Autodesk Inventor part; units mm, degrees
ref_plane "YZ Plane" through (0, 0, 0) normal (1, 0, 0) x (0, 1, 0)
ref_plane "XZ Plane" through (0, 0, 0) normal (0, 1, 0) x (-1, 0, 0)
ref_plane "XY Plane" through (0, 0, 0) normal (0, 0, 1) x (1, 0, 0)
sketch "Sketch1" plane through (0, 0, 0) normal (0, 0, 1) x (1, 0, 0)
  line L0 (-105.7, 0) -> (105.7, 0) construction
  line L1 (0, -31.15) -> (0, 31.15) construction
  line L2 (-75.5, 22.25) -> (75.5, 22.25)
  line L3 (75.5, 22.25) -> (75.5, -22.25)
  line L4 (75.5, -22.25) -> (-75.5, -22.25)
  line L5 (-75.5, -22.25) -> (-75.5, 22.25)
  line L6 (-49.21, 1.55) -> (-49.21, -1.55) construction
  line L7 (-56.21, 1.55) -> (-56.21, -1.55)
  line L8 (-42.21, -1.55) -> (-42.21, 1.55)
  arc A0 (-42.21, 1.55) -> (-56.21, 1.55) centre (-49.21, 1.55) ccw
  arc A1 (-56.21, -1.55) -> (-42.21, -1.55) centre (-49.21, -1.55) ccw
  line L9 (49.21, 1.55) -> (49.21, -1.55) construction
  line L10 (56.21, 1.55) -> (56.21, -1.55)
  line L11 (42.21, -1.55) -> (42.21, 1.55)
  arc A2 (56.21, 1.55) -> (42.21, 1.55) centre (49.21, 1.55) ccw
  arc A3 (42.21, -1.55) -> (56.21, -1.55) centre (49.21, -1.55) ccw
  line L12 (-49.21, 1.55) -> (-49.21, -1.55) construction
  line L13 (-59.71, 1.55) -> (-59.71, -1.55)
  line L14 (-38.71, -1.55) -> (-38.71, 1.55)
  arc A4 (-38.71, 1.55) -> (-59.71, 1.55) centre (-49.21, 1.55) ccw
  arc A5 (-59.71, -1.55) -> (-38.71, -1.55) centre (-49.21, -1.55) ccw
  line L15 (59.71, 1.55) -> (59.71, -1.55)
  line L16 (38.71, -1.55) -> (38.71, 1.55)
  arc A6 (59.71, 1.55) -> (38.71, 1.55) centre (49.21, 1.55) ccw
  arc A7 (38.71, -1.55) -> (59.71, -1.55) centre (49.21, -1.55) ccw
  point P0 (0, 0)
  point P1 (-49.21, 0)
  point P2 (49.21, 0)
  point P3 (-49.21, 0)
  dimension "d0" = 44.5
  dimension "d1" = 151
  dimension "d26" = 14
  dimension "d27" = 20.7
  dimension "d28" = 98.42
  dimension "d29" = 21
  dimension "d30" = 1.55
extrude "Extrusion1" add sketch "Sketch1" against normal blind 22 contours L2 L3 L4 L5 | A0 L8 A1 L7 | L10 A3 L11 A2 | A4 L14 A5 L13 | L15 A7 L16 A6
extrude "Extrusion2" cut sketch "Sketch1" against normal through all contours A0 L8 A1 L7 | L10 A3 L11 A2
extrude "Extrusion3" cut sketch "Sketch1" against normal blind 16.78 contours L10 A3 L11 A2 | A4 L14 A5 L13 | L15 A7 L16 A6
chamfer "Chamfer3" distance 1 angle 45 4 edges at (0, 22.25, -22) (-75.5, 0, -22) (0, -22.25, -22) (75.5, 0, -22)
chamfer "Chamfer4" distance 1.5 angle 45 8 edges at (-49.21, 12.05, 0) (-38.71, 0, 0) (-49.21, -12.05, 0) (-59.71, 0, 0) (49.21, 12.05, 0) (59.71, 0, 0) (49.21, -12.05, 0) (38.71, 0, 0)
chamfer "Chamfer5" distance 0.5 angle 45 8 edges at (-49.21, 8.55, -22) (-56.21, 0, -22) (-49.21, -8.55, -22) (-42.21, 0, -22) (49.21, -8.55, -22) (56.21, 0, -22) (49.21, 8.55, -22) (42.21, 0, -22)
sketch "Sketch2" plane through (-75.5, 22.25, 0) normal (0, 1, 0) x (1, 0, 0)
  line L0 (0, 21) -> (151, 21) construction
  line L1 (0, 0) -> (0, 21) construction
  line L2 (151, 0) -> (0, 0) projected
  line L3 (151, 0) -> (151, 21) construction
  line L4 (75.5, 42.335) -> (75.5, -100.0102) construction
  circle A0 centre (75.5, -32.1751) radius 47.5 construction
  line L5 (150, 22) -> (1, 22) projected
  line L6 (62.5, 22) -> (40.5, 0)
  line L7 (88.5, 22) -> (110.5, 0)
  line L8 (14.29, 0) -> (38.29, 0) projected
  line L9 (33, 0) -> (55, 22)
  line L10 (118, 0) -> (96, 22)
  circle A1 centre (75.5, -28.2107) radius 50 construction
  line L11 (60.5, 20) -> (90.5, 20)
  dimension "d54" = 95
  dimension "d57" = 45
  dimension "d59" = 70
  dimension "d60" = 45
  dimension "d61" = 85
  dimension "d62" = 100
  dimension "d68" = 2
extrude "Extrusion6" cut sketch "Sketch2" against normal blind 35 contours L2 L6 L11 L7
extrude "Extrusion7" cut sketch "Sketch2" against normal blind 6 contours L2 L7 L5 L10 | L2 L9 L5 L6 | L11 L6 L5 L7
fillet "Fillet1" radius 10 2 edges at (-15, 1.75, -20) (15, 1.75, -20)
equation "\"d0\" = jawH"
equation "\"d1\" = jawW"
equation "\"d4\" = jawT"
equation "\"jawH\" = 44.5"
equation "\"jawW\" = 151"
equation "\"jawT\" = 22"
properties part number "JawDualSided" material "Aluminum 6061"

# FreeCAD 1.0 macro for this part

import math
import FreeCAD as App
import Part
import Sketcher


def edges_at(feature, points):
    """Names of the edges that pass closest to the given points."""
    edges = feature.Shape.Edges
    near = lambda p: min(range(len(edges)), key=lambda i: edges[i].distToShape(Part.Vertex(*p))[0])
    return sorted({f"Edge{near(p) + 1}" for p in points})

doc = App.newDocument("Part")
body = doc.addObject("PartDesign::Body", "Body")

# Sketch on XY plane
sketch1 = body.newObject("Sketcher::SketchObject", "Sketch")
sketch1.AttachmentSupport = (doc.getObject("XY_Plane"), [""])
sketch1.MapMode = "FlatFace"
sketch1.addGeometry([
    Part.LineSegment(App.Vector(76, 22, 0), App.Vector(-76, 22, 0)),
    Part.LineSegment(App.Vector(-76, 22, 0), App.Vector(-76, -22, 0)),
    Part.LineSegment(App.Vector(-76, -22, 0), App.Vector(76, -22, 0)),
    Part.LineSegment(App.Vector(76, -22, 0), App.Vector(76, 22, 0)),
], False)
sketch1.addConstraint([
    Sketcher.Constraint("Coincident", 0, 2, 1, 1),
    Sketcher.Constraint("Coincident", 1, 2, 2, 1),
    Sketcher.Constraint("Coincident", 2, 2, 3, 1),
    Sketcher.Constraint("Coincident", 3, 2, 0, 1),
    Sketcher.Constraint("Horizontal", 0),
    Sketcher.Constraint("Vertical", 1),
    Sketcher.Constraint("Horizontal", 2),
    Sketcher.Constraint("Vertical", 3),
    Sketcher.Constraint("Symmetric", 0, 2, 2, 2, -1, 1),
    Sketcher.Constraint("DistanceX", 0, 2, 0, 1, 151.0),
    Sketcher.Constraint("DistanceY", 1, 2, 1, 1, 44.5),
])
pad1 = body.newObject("PartDesign::Pad", "Pad")
pad1.Profile = sketch1
pad1.Length = 22
pad1.Reversed = True

# Sketch on XY plane
sketch2 = body.newObject("Sketcher::SketchObject", "Sketch001")
sketch2.AttachmentSupport = (doc.getObject("XY_Plane"), [""])
sketch2.MapMode = "FlatFace"
sketch2.addGeometry([
    Part.ArcOfCircle(Part.Circle(App.Vector(-49.2, 1.6, 0), App.Vector(0, 0, 1), 7), math.radians(0), math.radians(180)),  # 0
    Part.LineSegment(App.Vector(-56.2, 1.6, 0), App.Vector(-56.2, -1.6, 0)),  # 1
    Part.ArcOfCircle(Part.Circle(App.Vector(-49.2, -1.6, 0), App.Vector(0, 0, 1), 7), math.radians(180), math.radians(360)),  # 2
    Part.LineSegment(App.Vector(-42.2, -1.6, 0), App.Vector(-42.2, 1.6, 0)),  # 3
    Part.LineSegment(App.Vector(56.2, -1.6, 0), App.Vector(56.2, 1.6, 0)),  # 4
    Part.ArcOfCircle(Part.Circle(App.Vector(49.2, 1.6, 0), App.Vector(0, 0, 1), 7), math.radians(0), math.radians(180)),  # 5
    Part.LineSegment(App.Vector(42.2, 1.6, 0), App.Vector(42.2, -1.6, 0)),  # 6
    Part.ArcOfCircle(Part.Circle(App.Vector(49.2, -1.6, 0), App.Vector(0, 0, 1), 7), math.radians(180), math.radians(360)),  # 7
], False)
sketch2.addConstraint([
    Sketcher.Constraint("Tangent", 0, 2, 1, 1),
    Sketcher.Constraint("Tangent", 1, 2, 2, 1),
    Sketcher.Constraint("Tangent", 2, 2, 3, 1),
    Sketcher.Constraint("Tangent", 3, 2, 0, 1),
    Sketcher.Constraint("Tangent", 4, 2, 5, 1),
    Sketcher.Constraint("Tangent", 5, 2, 6, 1),
    Sketcher.Constraint("Tangent", 6, 2, 7, 1),
    Sketcher.Constraint("Tangent", 7, 2, 4, 1),
    Sketcher.Constraint("Vertical", 1),
    Sketcher.Constraint("Vertical", 3),
    Sketcher.Constraint("Vertical", 4),
    Sketcher.Constraint("Vertical", 6),
    Sketcher.Constraint("Equal", 2, 5),
    Sketcher.Constraint("Symmetric", 2, 3, 5, 3, -1, 1),
    Sketcher.Constraint("Horizontal", 0, 3, 5, 3),
    Sketcher.Constraint("Horizontal", 2, 3, 7, 3),
    Sketcher.Constraint("Radius", 0, 7.0),
    Sketcher.Constraint("DistanceY", -1, 1, 0, 3, 1.55),
    Sketcher.Constraint("DistanceX", 0, 3, 5, 3, 98.42),
])
pocket1 = body.newObject("PartDesign::Pocket", "Pocket")
pocket1.Profile = sketch2
pocket1.Type = "ThroughAll"

# Sketch on XY plane
sketch3 = body.newObject("Sketcher::SketchObject", "Sketch002")
sketch3.AttachmentSupport = (doc.getObject("XY_Plane"), [""])
sketch3.MapMode = "FlatFace"
sketch3.addGeometry([
    Part.LineSegment(App.Vector(59.7, -1.6, 0), App.Vector(59.7, 1.6, 0)),  # 0
    Part.ArcOfCircle(Part.Circle(App.Vector(49.2, 1.6, 0), App.Vector(0, 0, 1), 10.5), math.radians(0), math.radians(180)),  # 1
    Part.LineSegment(App.Vector(38.7, 1.6, 0), App.Vector(38.7, -1.6, 0)),  # 2
    Part.ArcOfCircle(Part.Circle(App.Vector(49.2, -1.6, 0), App.Vector(0, 0, 1), 10.5), math.radians(180), math.radians(360)),  # 3
    Part.ArcOfCircle(Part.Circle(App.Vector(-49.2, 1.6, 0), App.Vector(0, 0, 1), 10.5), math.radians(0), math.radians(180)),  # 4
    Part.LineSegment(App.Vector(-59.7, 1.6, 0), App.Vector(-59.7, -1.6, 0)),  # 5
    Part.ArcOfCircle(Part.Circle(App.Vector(-49.2, -1.6, 0), App.Vector(0, 0, 1), 10.5), math.radians(180), math.radians(360)),  # 6
    Part.LineSegment(App.Vector(-38.7, -1.6, 0), App.Vector(-38.7, 1.6, 0)),  # 7
    Part.LineSegment(App.Vector(-56.2, -1.6, 0), App.Vector(-56.2, 1.6, 0)),  # 8
    Part.ArcOfCircle(Part.Circle(App.Vector(-49.2, 1.6, 0), App.Vector(0, 0, 1), 7), math.radians(0), math.radians(180)),  # 9
    Part.LineSegment(App.Vector(-42.2, 1.6, 0), App.Vector(-42.2, -1.6, 0)),  # 10
    Part.ArcOfCircle(Part.Circle(App.Vector(-49.2, -1.6, 0), App.Vector(0, 0, 1), 7), math.radians(180), math.radians(360)),  # 11
], False)
sketch3.addConstraint([
    Sketcher.Constraint("Tangent", 0, 2, 1, 1),
    Sketcher.Constraint("Tangent", 1, 2, 2, 1),
    Sketcher.Constraint("Tangent", 2, 2, 3, 1),
    Sketcher.Constraint("Tangent", 3, 2, 0, 1),
    Sketcher.Constraint("Tangent", 4, 2, 5, 1),
    Sketcher.Constraint("Tangent", 5, 2, 6, 1),
    Sketcher.Constraint("Tangent", 6, 2, 7, 1),
    Sketcher.Constraint("Tangent", 7, 2, 4, 1),
    Sketcher.Constraint("Tangent", 8, 2, 9, 2),
    Sketcher.Constraint("Tangent", 9, 1, 10, 1),
    Sketcher.Constraint("Tangent", 10, 2, 11, 2),
    Sketcher.Constraint("Tangent", 11, 1, 8, 1),
    Sketcher.Constraint("Vertical", 0),
    Sketcher.Constraint("Vertical", 2),
    Sketcher.Constraint("Vertical", 5),
    Sketcher.Constraint("Vertical", 7),
    Sketcher.Constraint("Vertical", 8),
    Sketcher.Constraint("Vertical", 10),
    Sketcher.Constraint("Coincident", 9, 3, 4, 3),
    Sketcher.Constraint("Equal", 3, 4),
    Sketcher.Constraint("Symmetric", 3, 3, 4, 3, -1, 1),
    Sketcher.Constraint("Horizontal", 1, 3, 4, 3),
    Sketcher.Constraint("Horizontal", 3, 3, 6, 3),
    Sketcher.Constraint("Horizontal", 3, 3, 11, 3),
    Sketcher.Constraint("Radius", 9, 7.0),
    Sketcher.Constraint("Radius", 1, 10.5),
    Sketcher.Constraint("DistanceY", -1, 1, 1, 3, 1.55),
    Sketcher.Constraint("DistanceX", 4, 3, 1, 3, 98.42),
])
pocket2 = body.newObject("PartDesign::Pocket", "Pocket001")
pocket2.Profile = sketch3
pocket2.Length = 16.78
doc.recompute()

chamfer = body.newObject("PartDesign::Chamfer", "Chamfer")
chamfer.Base = (pocket2, edges_at(pocket2, [
    (0, 22.25, -22),
    (-75.5, 0, -22),
    (0, -22.25, -22),
    (75.5, 0, -22),
]))
chamfer.Size = 1
doc.recompute()

chamfer2 = body.newObject("PartDesign::Chamfer", "Chamfer001")
chamfer2.Base = (chamfer, edges_at(chamfer, [
    (-49.21, 12.05, 0),
    (-38.71, 0, 0),
    (-49.21, -12.05, 0),
    (-59.71, 0, 0),
    (49.21, 12.05, 0),
    (59.71, 0, 0),
    (49.21, -12.05, 0),
    (38.71, 0, 0),
]))
chamfer2.Size = 1.5
doc.recompute()

chamfer3 = body.newObject("PartDesign::Chamfer", "Chamfer002")
chamfer3.Base = (chamfer2, edges_at(chamfer2, [
    (-49.21, 8.55, -22),
    (-56.21, 0, -22),
    (-49.21, -8.55, -22),
    (-42.21, 0, -22),
    (49.21, -8.55, -22),
    (56.21, 0, -22),
    (49.21, 8.55, -22),
    (42.21, 0, -22),
]))
chamfer3.Size = 0.5

# Sketch on XZ plane
sketch4 = body.newObject("Sketcher::SketchObject", "Sketch003")
sketch4.AttachmentSupport = (doc.getObject("XZ_Plane"), [""])
sketch4.MapMode = "FlatFace"
sketch4.AttachmentOffset = App.Placement(App.Vector(0, 0, -22.25), App.Rotation())
sketch4.addGeometry([
    Part.LineSegment(App.Vector(-35, 0, 0), App.Vector(35, 0, 0)),
    Part.LineSegment(App.Vector(35, 0, 0), App.Vector(15, -20, 0)),
    Part.LineSegment(App.Vector(15, -20, 0), App.Vector(-15, -20, 0)),
    Part.LineSegment(App.Vector(-15, -20, 0), App.Vector(-35, 0, 0)),
], False)
sketch4.addConstraint([
    Sketcher.Constraint("Coincident", 0, 2, 1, 1),
    Sketcher.Constraint("Coincident", 1, 2, 2, 1),
    Sketcher.Constraint("Coincident", 2, 2, 3, 1),
    Sketcher.Constraint("Coincident", 3, 2, 0, 1),
    Sketcher.Constraint("Horizontal", 0),
    Sketcher.Constraint("Horizontal", 2),
    Sketcher.Constraint("Symmetric", 0, 2, 3, 2, -1, 1),
    Sketcher.Constraint("Perpendicular", 1, 3),
    Sketcher.Constraint("Equal", 1, 3),
    Sketcher.Constraint("DistanceX", 0, 1, 0, 2, 70.0),
    Sketcher.Constraint("DistanceX", 2, 2, 2, 1, 30.0),
])
pocket3 = body.newObject("PartDesign::Pocket", "Pocket002")
pocket3.Profile = sketch4
pocket3.Length = 35
pocket3.Reversed = True

# Sketch on XZ plane
sketch5 = body.newObject("Sketcher::SketchObject", "Sketch004")
sketch5.AttachmentSupport = (doc.getObject("XZ_Plane"), [""])
sketch5.MapMode = "FlatFace"
sketch5.AttachmentOffset = App.Placement(App.Vector(0, 0, -22.25), App.Rotation())
sketch5.addGeometry([
    Part.LineSegment(App.Vector(35, 0, 0), App.Vector(42, 0, 0)),  # 0
    Part.LineSegment(App.Vector(42, 0, 0), App.Vector(20, -22, 0)),  # 1
    Part.LineSegment(App.Vector(20, -22, 0), App.Vector(-20, -22, 0)),  # 2
    Part.LineSegment(App.Vector(-20, -22, 0), App.Vector(-42, 0, 0)),  # 3
    Part.LineSegment(App.Vector(-42, 0, 0), App.Vector(-35, 0, 0)),  # 4
    Part.LineSegment(App.Vector(-35, 0, 0), App.Vector(-15, -20, 0)),  # 5
    Part.LineSegment(App.Vector(-15, -20, 0), App.Vector(15, -20, 0)),  # 6
    Part.LineSegment(App.Vector(15, -20, 0), App.Vector(35, 0, 0)),  # 7
], False)
sketch5.addConstraint([
    Sketcher.Constraint("Coincident", 0, 2, 1, 1),
    Sketcher.Constraint("Coincident", 1, 2, 2, 1),
    Sketcher.Constraint("Coincident", 2, 2, 3, 1),
    Sketcher.Constraint("Coincident", 3, 2, 4, 1),
    Sketcher.Constraint("Coincident", 4, 2, 5, 1),
    Sketcher.Constraint("Coincident", 5, 2, 6, 1),
    Sketcher.Constraint("Coincident", 6, 2, 7, 1),
    Sketcher.Constraint("Coincident", 7, 2, 0, 1),
    Sketcher.Constraint("Horizontal", 0),
    Sketcher.Constraint("Horizontal", 2),
    Sketcher.Constraint("Horizontal", 4),
    Sketcher.Constraint("Horizontal", 6),
    Sketcher.Constraint("Symmetric", 0, 2, 3, 2, -1, 1),
    Sketcher.Constraint("Symmetric", 4, 2, 7, 2, -2),
    Sketcher.Constraint("Perpendicular", 1, 3),
    Sketcher.Constraint("Parallel", 3, 5),
    Sketcher.Constraint("Perpendicular", 5, 7),
    Sketcher.Constraint("Equal", 1, 3),
    Sketcher.Constraint("DistanceX", 3, 2, 0, 2, 85.0),
    Sketcher.Constraint("DistanceY", 2, 2, 5, 2, 2.0),
    Sketcher.Constraint("DistanceX", 2, 2, 2, 1, 41.0),
    Sketcher.Constraint("DistanceX", 6, 1, 6, 2, 30.0),
])
pocket4 = body.newObject("PartDesign::Pocket", "Pocket003")
pocket4.Profile = sketch5
pocket4.Length = 6
pocket4.Reversed = True
doc.recompute()

fillet = body.newObject("PartDesign::Fillet", "Fillet")
fillet.Base = (pocket4, edges_at(pocket4, [(-15, 1.75, -20), (15, 1.75, -20)]))
fillet.Radius = 10

doc.recompute()
